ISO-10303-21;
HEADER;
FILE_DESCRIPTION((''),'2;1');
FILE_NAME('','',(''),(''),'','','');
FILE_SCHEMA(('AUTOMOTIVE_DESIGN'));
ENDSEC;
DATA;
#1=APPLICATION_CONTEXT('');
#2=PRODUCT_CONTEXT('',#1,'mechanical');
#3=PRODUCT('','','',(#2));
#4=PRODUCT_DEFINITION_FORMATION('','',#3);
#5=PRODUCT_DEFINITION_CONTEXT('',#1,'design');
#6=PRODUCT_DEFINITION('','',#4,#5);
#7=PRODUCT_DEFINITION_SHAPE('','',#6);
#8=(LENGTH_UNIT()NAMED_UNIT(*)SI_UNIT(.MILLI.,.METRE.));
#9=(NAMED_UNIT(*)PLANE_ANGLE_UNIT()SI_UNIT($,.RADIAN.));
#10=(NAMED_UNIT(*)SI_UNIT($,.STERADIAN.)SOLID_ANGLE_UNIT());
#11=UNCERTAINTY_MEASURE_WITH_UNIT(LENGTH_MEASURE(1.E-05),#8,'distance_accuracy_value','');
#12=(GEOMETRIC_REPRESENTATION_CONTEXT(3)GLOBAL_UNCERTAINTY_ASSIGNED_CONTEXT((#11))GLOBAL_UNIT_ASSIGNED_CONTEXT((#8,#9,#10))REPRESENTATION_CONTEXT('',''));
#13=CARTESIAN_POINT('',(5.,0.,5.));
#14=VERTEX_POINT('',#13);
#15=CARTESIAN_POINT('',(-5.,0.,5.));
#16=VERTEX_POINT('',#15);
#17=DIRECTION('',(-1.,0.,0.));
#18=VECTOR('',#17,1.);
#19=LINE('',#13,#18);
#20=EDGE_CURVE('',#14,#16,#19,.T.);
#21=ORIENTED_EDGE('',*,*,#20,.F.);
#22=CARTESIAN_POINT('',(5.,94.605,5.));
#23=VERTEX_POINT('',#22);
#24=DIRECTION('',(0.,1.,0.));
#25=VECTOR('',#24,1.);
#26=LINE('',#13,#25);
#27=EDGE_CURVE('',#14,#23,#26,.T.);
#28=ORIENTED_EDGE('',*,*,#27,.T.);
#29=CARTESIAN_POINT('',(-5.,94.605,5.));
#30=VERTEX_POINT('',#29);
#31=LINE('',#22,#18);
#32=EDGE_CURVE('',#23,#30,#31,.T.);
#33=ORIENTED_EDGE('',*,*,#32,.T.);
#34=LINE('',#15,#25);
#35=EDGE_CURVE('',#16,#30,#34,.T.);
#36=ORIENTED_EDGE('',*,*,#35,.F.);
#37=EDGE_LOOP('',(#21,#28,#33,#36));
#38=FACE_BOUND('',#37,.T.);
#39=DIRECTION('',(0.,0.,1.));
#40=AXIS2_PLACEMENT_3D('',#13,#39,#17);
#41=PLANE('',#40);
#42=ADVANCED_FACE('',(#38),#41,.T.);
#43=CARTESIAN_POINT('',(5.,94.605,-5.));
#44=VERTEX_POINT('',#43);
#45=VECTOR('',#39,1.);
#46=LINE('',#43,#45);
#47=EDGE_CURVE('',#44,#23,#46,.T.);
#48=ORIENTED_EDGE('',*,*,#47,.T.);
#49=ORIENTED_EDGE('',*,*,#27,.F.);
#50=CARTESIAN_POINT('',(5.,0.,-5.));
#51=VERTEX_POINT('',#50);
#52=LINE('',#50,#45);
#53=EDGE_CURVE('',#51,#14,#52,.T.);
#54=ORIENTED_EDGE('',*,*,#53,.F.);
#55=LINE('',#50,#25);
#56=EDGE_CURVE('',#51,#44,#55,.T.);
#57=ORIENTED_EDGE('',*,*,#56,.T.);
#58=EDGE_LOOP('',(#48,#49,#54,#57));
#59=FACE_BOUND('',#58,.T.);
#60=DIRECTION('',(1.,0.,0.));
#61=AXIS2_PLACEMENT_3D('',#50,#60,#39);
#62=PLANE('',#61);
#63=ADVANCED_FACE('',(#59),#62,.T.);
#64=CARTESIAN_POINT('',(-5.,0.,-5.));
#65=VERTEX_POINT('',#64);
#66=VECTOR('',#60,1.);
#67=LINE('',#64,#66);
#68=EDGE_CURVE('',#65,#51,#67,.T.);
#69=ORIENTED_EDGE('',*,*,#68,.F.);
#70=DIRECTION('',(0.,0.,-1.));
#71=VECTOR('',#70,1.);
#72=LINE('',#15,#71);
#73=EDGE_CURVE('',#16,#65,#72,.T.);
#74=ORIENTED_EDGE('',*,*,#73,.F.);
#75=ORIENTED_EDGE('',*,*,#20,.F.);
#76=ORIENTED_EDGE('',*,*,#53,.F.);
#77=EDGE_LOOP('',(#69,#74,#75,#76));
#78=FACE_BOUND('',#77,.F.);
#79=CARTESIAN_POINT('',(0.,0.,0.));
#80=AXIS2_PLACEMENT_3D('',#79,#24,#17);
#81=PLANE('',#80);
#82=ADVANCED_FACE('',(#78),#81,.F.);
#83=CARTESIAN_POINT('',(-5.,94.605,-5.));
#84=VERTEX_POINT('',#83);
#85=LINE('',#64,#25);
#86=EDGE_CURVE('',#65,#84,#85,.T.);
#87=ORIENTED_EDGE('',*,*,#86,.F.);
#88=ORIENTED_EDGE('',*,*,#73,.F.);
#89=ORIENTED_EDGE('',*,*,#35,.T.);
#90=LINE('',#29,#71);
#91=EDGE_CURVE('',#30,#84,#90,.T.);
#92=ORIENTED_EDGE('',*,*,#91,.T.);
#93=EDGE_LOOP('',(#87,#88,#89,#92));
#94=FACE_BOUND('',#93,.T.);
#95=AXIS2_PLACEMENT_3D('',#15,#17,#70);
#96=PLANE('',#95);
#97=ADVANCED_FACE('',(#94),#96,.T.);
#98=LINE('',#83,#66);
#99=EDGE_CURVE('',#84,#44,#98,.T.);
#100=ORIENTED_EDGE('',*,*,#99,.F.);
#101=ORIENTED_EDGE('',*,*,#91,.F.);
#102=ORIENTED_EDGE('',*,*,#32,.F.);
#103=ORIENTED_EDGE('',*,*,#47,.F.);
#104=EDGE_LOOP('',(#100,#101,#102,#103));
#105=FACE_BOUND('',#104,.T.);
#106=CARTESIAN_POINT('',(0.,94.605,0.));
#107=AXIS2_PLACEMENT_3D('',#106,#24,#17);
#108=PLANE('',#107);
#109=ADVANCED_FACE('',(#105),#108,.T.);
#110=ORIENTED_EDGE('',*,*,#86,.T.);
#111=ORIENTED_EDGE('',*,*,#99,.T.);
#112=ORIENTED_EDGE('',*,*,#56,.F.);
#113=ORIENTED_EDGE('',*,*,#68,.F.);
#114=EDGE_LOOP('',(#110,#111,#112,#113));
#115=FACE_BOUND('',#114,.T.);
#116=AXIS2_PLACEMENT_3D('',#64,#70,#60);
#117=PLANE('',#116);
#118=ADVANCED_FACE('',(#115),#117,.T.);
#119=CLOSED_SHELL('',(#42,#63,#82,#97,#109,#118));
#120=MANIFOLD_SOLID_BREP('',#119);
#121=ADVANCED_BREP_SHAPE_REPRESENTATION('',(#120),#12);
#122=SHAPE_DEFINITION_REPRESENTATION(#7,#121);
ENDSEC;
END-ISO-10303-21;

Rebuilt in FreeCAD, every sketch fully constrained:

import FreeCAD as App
import Part
import Sketcher
from FreeCAD import Vector
Q = App.Units.Quantity

doc = App.newDocument("Part")
body = doc.addObject("PartDesign::Body", "Body")

sketch1 = doc.addObject("Sketcher::SketchObject", "Sketch")
body.addObject(sketch1)
sketch1.AttachmentSupport = (doc.XZ_Plane, [""])
sketch1.MapMode = "FlatFace"
sketch1.addGeometry(Part.LineSegment(Vector(5, -5, 0), Vector(-5, -5, 0)), False)
sketch1.addGeometry(Part.LineSegment(Vector(-5, -5, 0), Vector(-5, 5, 0)), False)
sketch1.addGeometry(Part.LineSegment(Vector(-5, 5, 0), Vector(5, 5, 0)), False)
sketch1.addGeometry(Part.LineSegment(Vector(5, 5, 0), Vector(5, -5, 0)), False)
sketch1.addConstraint(Sketcher.Constraint("Coincident", 0, 2, 1, 1))
sketch1.addConstraint(Sketcher.Constraint("Coincident", 1, 2, 2, 1))
sketch1.addConstraint(Sketcher.Constraint("Coincident", 2, 2, 3, 1))
sketch1.addConstraint(Sketcher.Constraint("Coincident", 3, 2, 0, 1))
sketch1.addConstraint(Sketcher.Constraint("Horizontal", 0))
sketch1.addConstraint(Sketcher.Constraint("Vertical", 1))
sketch1.addConstraint(Sketcher.Constraint("Horizontal", 2))
sketch1.addConstraint(Sketcher.Constraint("Vertical", 3))
sketch1.addConstraint(Sketcher.Constraint("Symmetric", 0, 2, 2, 2, -1, 1))
sketch1.addConstraint(Sketcher.Constraint("Equal", 2, 1))
sketch1.addConstraint(Sketcher.Constraint("DistanceX", 0, 2, 0, 1, Q("10 mm")))
pad1 = doc.addObject("PartDesign::Pad", "Pad")
body.addObject(pad1)
pad1.Profile = sketch1
pad1.Length = 94.605
pad1.Reversed = True

doc.recompute()
